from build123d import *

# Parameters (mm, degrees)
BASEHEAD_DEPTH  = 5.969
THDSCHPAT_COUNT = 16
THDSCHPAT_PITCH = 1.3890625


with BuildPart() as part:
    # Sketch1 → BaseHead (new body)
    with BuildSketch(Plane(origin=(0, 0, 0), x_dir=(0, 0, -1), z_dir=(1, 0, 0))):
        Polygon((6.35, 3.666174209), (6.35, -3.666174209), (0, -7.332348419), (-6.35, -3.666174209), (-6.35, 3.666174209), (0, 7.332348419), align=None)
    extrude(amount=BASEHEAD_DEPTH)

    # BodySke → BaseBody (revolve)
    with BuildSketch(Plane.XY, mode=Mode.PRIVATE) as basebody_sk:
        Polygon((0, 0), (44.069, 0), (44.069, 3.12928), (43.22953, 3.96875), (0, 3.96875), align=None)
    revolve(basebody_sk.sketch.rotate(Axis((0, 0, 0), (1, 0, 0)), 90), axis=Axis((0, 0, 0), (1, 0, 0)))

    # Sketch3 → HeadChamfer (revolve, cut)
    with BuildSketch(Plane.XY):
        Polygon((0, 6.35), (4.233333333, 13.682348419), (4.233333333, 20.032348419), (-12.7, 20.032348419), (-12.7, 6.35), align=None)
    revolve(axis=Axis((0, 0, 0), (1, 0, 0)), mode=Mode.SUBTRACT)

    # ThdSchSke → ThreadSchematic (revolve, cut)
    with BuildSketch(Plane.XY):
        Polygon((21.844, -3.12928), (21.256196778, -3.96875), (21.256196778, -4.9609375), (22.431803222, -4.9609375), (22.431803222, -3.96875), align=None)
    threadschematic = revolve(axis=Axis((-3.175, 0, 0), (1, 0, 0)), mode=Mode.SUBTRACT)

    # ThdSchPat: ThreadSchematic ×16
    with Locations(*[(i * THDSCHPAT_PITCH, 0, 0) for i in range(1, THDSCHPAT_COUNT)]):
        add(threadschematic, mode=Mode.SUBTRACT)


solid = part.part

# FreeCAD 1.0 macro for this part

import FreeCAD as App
import Part
import Sketcher
Q = App.Units.Quantity

doc = App.newDocument("Part")
body = doc.addObject("PartDesign::Body", "Body")

sketch1 = body.newObject("Sketcher::SketchObject", "Sketch")
sketch1.AttachmentSupport = (doc.getObject("YZ_Plane"), [""])
sketch1.MapMode = "FlatFace"
sketch1.addGeometry([
    Part.LineSegment(App.Vector(-3.666174, -6.35, 0), App.Vector(3.666174, -6.35, 0)),
    Part.LineSegment(App.Vector(3.666174, -6.35, 0), App.Vector(7.332348, 0, 0)),
    Part.LineSegment(App.Vector(7.332348, 0, 0), App.Vector(3.666174, 6.35, 0)),
    Part.LineSegment(App.Vector(3.666174, 6.35, 0), App.Vector(-3.666174, 6.35, 0)),
    Part.LineSegment(App.Vector(-3.666174, 6.35, 0), App.Vector(-7.332348, 0, 0)),
    Part.LineSegment(App.Vector(-7.332348, 0, 0), App.Vector(-3.666174, -6.35, 0)),
], False)
sketch1.addConstraint([
    Sketcher.Constraint("Coincident", 0, 2, 1, 1),
    Sketcher.Constraint("Coincident", 1, 2, 2, 1),
    Sketcher.Constraint("Coincident", 2, 2, 3, 1),
    Sketcher.Constraint("Coincident", 3, 2, 4, 1),
    Sketcher.Constraint("Coincident", 4, 2, 5, 1),
    Sketcher.Constraint("Coincident", 5, 2, 0, 1),
    Sketcher.Constraint("Horizontal", 0),
    Sketcher.Constraint("Horizontal", 3),
    Sketcher.Constraint("Symmetric", 0, 2, 3, 2, -1, 1),
    Sketcher.Constraint("Symmetric", 1, 2, 4, 2, -1, 1),
    Sketcher.Constraint("PointOnObject", 1, 2, -1),
    Sketcher.Constraint("Parallel", 2, 5),
    Sketcher.Constraint("Vertical", 0, 2, 2, 2),
    Sketcher.Constraint("Angle", 1, Q("60 deg")),
    Sketcher.Constraint("DistanceY", 0, 2, 2, 2, Q("0.5 in")),
    Sketcher.Constraint("DistanceX", 0, 1, 0, 2, 7.332348),
])
pad1 = body.newObject("PartDesign::Pad", "Pad")
pad1.Profile = sketch1
pad1.Length = Q("0.235 in")

sketch2 = body.newObject("Sketcher::SketchObject", "Sketch001")
sketch2.AttachmentSupport = (doc.getObject("XY_Plane"), [""])
sketch2.MapMode = "FlatFace"
sketch2.addGeometry([
    Part.LineSegment(App.Vector(0, 0, 0), App.Vector(44.069, 0, 0)),
    Part.LineSegment(App.Vector(44.069, 0, 0), App.Vector(44.069, 3.12928, 0)),
    Part.LineSegment(App.Vector(44.069, 3.12928, 0), App.Vector(43.22953, 3.96875, 0)),
    Part.LineSegment(App.Vector(43.22953, 3.96875, 0), App.Vector(0, 3.96875, 0)),
    Part.LineSegment(App.Vector(0, 3.96875, 0), App.Vector(0, 0, 0)),
], False)
sketch2.addConstraint([
    Sketcher.Constraint("Coincident", 0, 2, 1, 1),
    Sketcher.Constraint("Coincident", 1, 2, 2, 1),
    Sketcher.Constraint("Coincident", 2, 2, 3, 1),
    Sketcher.Constraint("Coincident", 3, 2, 4, 1),
    Sketcher.Constraint("Coincident", 4, 2, 0, 1),
    Sketcher.Constraint("Horizontal", 0),
    Sketcher.Constraint("Vertical", 1),
    Sketcher.Constraint("Horizontal", 3),
    Sketcher.Constraint("Vertical", 4),
    Sketcher.Constraint("Coincident", 4, 2, -1, 1),
    Sketcher.Constraint("Angle", 2, Q("135 deg")),
    Sketcher.Constraint("DistanceX", 0, 1, 0, 2, Q("1.735 in")),
    Sketcher.Constraint("DistanceY", 4, 2, 4, 1, Q("0.15625 in")),
    Sketcher.Constraint("DistanceY", 1, 1, 1, 2, Q("0.1232 in")),
])
revolution = body.newObject("PartDesign::Revolution", "Revolution")
revolution.Profile = sketch2
revolution.ReferenceAxis = (sketch2, ["H_Axis"])
revolution.Angle = 360

sketch3 = body.newObject("Sketcher::SketchObject", "Sketch002")
sketch3.AttachmentSupport = (doc.getObject("XY_Plane"), [""])
sketch3.MapMode = "FlatFace"
sketch3.addGeometry([
    Part.LineSegment(App.Vector(0, 6.35, 0), App.Vector(4.233333, 13.682348, 0)),
    Part.LineSegment(App.Vector(4.233333, 13.682348, 0), App.Vector(4.233333, 20.032348, 0)),
    Part.LineSegment(App.Vector(4.233333, 20.032348, 0), App.Vector(-12.7, 20.032348, 0)),
    Part.LineSegment(App.Vector(-12.7, 20.032348, 0), App.Vector(-12.7, 6.35, 0)),
    Part.LineSegment(App.Vector(-12.7, 6.35, 0), App.Vector(0, 6.35, 0)),
], False)
sketch3.addConstraint([
    Sketcher.Constraint("Coincident", 0, 2, 1, 1),
    Sketcher.Constraint("Coincident", 1, 2, 2, 1),
    Sketcher.Constraint("Coincident", 2, 2, 3, 1),
    Sketcher.Constraint("Coincident", 3, 2, 4, 1),
    Sketcher.Constraint("Coincident", 4, 2, 0, 1),
    Sketcher.Constraint("Vertical", 1),
    Sketcher.Constraint("Horizontal", 2),
    Sketcher.Constraint("Vertical", 3),
    Sketcher.Constraint("Horizontal", 4),
    Sketcher.Constraint("PointOnObject", 4, 2, -2),
    Sketcher.Constraint("DistanceX", 4, 1, 4, 2, Q("0.5 in")),
    Sketcher.Constraint("Angle", 0, Q("60 deg")),
    Sketcher.Constraint("DistanceY", 1, 1, 1, 2, Q("0.25 in")),
    Sketcher.Constraint("DistanceY", -1, 1, 3, 2, Q("0.25 in")),
    Sketcher.Constraint("DistanceY", 3, 2, 3, 1, 13.682348),
])
groove = body.newObject("PartDesign::Groove", "Groove")
groove.Profile = sketch3
groove.ReferenceAxis = (sketch3, ["H_Axis"])
groove.Angle = 360

sketch4 = body.newObject("Sketcher::SketchObject", "Sketch003")
sketch4.AttachmentSupport = (doc.getObject("XY_Plane"), [""])
sketch4.MapMode = "FlatFace"
sketch4.addGeometry([
    Part.LineSegment(App.Vector(21.844, -3.12928, 0), App.Vector(21.256197, -3.96875, 0)),
    Part.LineSegment(App.Vector(21.256197, -3.96875, 0), App.Vector(21.256197, -4.960938, 0)),
    Part.LineSegment(App.Vector(21.256197, -4.960938, 0), App.Vector(22.431803, -4.960938, 0)),
    Part.LineSegment(App.Vector(22.431803, -4.960938, 0), App.Vector(22.431803, -3.96875, 0)),
    Part.LineSegment(App.Vector(22.431803, -3.96875, 0), App.Vector(21.844, -3.12928, 0)),
], False)
sketch4.addConstraint([
    Sketcher.Constraint("Coincident", 0, 2, 1, 1),
    Sketcher.Constraint("Coincident", 1, 2, 2, 1),
    Sketcher.Constraint("Coincident", 2, 2, 3, 1),
    Sketcher.Constraint("Coincident", 3, 2, 4, 1),
    Sketcher.Constraint("Coincident", 4, 2, 0, 1),
    Sketcher.Constraint("Vertical", 1),
    Sketcher.Constraint("Horizontal", 2),
    Sketcher.Constraint("Vertical", 3),
    Sketcher.Constraint("Horizontal", 0, 2, 3, 2),
    Sketcher.Constraint("Equal", 0, 4),
    Sketcher.Constraint("Angle", 0, Q("-125 deg")),
    Sketcher.Constraint("DistanceX", -1, 1, 4, 2, Q("0.86 in")),
    Sketcher.Constraint("DistanceY", 0, 2, -1, 1, Q("0.15625 in")),
    Sketcher.Constraint("DistanceY", 4, 2, -1, 1, Q("0.1232 in")),
    Sketcher.Constraint("DistanceY", 1, 2, 1, 1, 0.992188),
])
groove2 = body.newObject("PartDesign::Groove", "Groove001")
groove2.Profile = sketch4
groove2.ReferenceAxis = (sketch4, ["H_Axis"])
groove2.Angle = 360
doc.recompute()

linearpattern = body.newObject("PartDesign::LinearPattern", "LinearPattern")
linearpattern.Originals = [groove2]
linearpattern.Direction = (doc.getObject("X_Axis"), [""])
linearpattern.Mode = "offset"
linearpattern.Offset = 1.389063
linearpattern.Occurrences = 16
body.Tip = linearpattern

doc.recompute()
